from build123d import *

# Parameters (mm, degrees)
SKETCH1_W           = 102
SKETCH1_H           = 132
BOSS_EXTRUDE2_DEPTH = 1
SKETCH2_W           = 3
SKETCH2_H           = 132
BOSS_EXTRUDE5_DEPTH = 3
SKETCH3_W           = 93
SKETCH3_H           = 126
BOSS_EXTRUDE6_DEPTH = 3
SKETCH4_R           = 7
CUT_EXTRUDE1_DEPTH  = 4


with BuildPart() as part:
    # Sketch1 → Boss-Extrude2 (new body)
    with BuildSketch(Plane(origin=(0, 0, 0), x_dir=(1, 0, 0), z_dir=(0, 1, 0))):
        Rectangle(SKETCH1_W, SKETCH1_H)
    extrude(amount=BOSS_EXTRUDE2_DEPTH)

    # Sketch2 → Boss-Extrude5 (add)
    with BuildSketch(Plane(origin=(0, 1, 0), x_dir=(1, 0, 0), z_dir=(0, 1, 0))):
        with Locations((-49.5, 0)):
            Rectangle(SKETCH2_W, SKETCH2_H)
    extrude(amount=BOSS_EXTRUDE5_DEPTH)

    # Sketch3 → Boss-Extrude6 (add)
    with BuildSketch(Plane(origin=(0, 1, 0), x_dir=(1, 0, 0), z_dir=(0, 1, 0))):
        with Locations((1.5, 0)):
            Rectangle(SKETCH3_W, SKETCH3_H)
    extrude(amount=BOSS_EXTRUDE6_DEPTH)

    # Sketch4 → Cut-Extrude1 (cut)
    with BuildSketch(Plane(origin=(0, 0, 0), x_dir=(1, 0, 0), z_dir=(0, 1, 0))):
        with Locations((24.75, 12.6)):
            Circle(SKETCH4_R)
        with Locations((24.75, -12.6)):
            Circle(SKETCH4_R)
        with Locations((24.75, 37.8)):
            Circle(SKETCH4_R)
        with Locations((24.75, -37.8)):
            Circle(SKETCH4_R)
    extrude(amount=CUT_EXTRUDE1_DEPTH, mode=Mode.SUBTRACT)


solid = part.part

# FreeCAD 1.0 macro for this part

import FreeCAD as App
import Part
import Sketcher

V = App.Vector


def add_polygon(sketch, points):
    """Adds a closed chain of lines whose ends are joined by coincident constraints."""
    first, n = sketch.GeometryCount, len(points)
    for a, b in zip(points, points[1:] + points[:1]):
        sketch.addGeometry(Part.LineSegment(App.Vector(*a, 0), App.Vector(*b, 0)), False)
    for i in range(n):
        sketch.addConstraint(Sketcher.Constraint("Coincident", first + i, 2, first + (i + 1) % n, 1))

doc = App.newDocument("Part")
body = doc.addObject("PartDesign::Body", "Body")

# Sketch on XZ plane
sketch1 = body.newObject("Sketcher::SketchObject", "Sketch")
sketch1.AttachmentSupport = (doc.getObject("XZ_Plane"), [""])
sketch1.MapMode = "FlatFace"
add_polygon(sketch1, [(-51, -66), (-51, 66), (51, 66), (51, -66)])  # lines 0-3
sketch1.addConstraint([
    Sketcher.Constraint("Vertical", 0),
    Sketcher.Constraint("Horizontal", 1),
    Sketcher.Constraint("Vertical", 2),
    Sketcher.Constraint("Horizontal", 3),
    Sketcher.Constraint("Symmetric", 0, 2, 2, 2, -1, 1),
    Sketcher.Constraint("DistanceX", 1, 1, 1, 2, 102.0),
    Sketcher.Constraint("DistanceY", 0, 1, 0, 2, 132.0),
])
pad1 = body.newObject("PartDesign::Pad", "Pad")
pad1.Profile = sketch1
pad1.Length = 1
pad1.Reversed = True

# Sketch on XZ plane
sketch2 = body.newObject("Sketcher::SketchObject", "Sketch001")
sketch2.AttachmentSupport = (doc.getObject("XZ_Plane"), [""])
sketch2.MapMode = "FlatFace"
sketch2.AttachmentOffset = App.Placement(V(0, 0, -1), App.Rotation())
add_polygon(sketch2, [(-51, -66), (-51, 66), (-48, 66), (-48, -66)])  # lines 0-3
sketch2.addConstraint([
    Sketcher.Constraint("Vertical", 0),
    Sketcher.Constraint("Horizontal", 1),
    Sketcher.Constraint("Vertical", 2),
    Sketcher.Constraint("Horizontal", 3),
    Sketcher.Constraint("DistanceX", 1, 1, 1, 2, 3.0),
    Sketcher.Constraint("DistanceY", 0, 1, 0, 2, 132.0),
    Sketcher.Constraint("DistanceX", 0, 2, -1, 1, 51.0),
    Sketcher.Constraint("DistanceY", -1, 1, 0, 2, 66.0),
])
pad2 = body.newObject("PartDesign::Pad", "Pad001")
pad2.Profile = sketch2
pad2.Length = 3
pad2.Reversed = True

# Sketch on XZ plane
sketch3 = body.newObject("Sketcher::SketchObject", "Sketch002")
sketch3.AttachmentSupport = (doc.getObject("XZ_Plane"), [""])
sketch3.MapMode = "FlatFace"
sketch3.AttachmentOffset = App.Placement(V(0, 0, -1), App.Rotation())
add_polygon(sketch3, [(-45, -63), (-45, 63), (48, 63), (48, -63)])  # lines 0-3
sketch3.addConstraint([
    Sketcher.Constraint("Vertical", 0),
    Sketcher.Constraint("Horizontal", 1),
    Sketcher.Constraint("Vertical", 2),
    Sketcher.Constraint("Horizontal", 3),
    Sketcher.Constraint("DistanceX", 1, 1, 1, 2, 93.0),
    Sketcher.Constraint("DistanceY", 0, 1, 0, 2, 126.0),
    Sketcher.Constraint("DistanceX", 0, 2, -1, 1, 45.0),
    Sketcher.Constraint("DistanceY", -1, 1, 0, 2, 63.0),
])
pad3 = body.newObject("PartDesign::Pad", "Pad002")
pad3.Profile = sketch3
pad3.Length = 3
pad3.Reversed = True

# Sketch on XZ plane
sketch4 = body.newObject("Sketcher::SketchObject", "Sketch003")
sketch4.AttachmentSupport = (doc.getObject("XZ_Plane"), [""])
sketch4.MapMode = "FlatFace"
sketch4.addGeometry([
    Part.Circle(V(25, -13, 0), V(0, 0, 1), 7),
    Part.Circle(V(25, 13, 0), V(0, 0, 1), 7),
    Part.Circle(V(25, -38, 0), V(0, 0, 1), 7),
    Part.Circle(V(25, 38, 0), V(0, 0, 1), 7),
], False)
sketch4.addConstraint([
    Sketcher.Constraint("Equal", 0, 1),
    Sketcher.Constraint("Equal", 1, 2),
    Sketcher.Constraint("Equal", 2, 3),
    Sketcher.Constraint("Symmetric", 0, 3, 1, 3, -1),
    Sketcher.Constraint("Symmetric", 2, 3, 3, 3, -1),
    Sketcher.Constraint("Vertical", 1, 3, 2, 3),
    Sketcher.Constraint("Diameter", 0, 14.0),
    Sketcher.Constraint("DistanceY", 0, 3, -1, 1, 12.6),
    Sketcher.Constraint("DistanceY", 2, 3, -1, 1, 37.8),
    Sketcher.Constraint("DistanceX", -1, 1, 0, 3, 24.75),
])
pocket1 = body.newObject("PartDesign::Pocket", "Pocket")
pocket1.Profile = sketch4
pocket1.Length = 4

doc.recompute()
